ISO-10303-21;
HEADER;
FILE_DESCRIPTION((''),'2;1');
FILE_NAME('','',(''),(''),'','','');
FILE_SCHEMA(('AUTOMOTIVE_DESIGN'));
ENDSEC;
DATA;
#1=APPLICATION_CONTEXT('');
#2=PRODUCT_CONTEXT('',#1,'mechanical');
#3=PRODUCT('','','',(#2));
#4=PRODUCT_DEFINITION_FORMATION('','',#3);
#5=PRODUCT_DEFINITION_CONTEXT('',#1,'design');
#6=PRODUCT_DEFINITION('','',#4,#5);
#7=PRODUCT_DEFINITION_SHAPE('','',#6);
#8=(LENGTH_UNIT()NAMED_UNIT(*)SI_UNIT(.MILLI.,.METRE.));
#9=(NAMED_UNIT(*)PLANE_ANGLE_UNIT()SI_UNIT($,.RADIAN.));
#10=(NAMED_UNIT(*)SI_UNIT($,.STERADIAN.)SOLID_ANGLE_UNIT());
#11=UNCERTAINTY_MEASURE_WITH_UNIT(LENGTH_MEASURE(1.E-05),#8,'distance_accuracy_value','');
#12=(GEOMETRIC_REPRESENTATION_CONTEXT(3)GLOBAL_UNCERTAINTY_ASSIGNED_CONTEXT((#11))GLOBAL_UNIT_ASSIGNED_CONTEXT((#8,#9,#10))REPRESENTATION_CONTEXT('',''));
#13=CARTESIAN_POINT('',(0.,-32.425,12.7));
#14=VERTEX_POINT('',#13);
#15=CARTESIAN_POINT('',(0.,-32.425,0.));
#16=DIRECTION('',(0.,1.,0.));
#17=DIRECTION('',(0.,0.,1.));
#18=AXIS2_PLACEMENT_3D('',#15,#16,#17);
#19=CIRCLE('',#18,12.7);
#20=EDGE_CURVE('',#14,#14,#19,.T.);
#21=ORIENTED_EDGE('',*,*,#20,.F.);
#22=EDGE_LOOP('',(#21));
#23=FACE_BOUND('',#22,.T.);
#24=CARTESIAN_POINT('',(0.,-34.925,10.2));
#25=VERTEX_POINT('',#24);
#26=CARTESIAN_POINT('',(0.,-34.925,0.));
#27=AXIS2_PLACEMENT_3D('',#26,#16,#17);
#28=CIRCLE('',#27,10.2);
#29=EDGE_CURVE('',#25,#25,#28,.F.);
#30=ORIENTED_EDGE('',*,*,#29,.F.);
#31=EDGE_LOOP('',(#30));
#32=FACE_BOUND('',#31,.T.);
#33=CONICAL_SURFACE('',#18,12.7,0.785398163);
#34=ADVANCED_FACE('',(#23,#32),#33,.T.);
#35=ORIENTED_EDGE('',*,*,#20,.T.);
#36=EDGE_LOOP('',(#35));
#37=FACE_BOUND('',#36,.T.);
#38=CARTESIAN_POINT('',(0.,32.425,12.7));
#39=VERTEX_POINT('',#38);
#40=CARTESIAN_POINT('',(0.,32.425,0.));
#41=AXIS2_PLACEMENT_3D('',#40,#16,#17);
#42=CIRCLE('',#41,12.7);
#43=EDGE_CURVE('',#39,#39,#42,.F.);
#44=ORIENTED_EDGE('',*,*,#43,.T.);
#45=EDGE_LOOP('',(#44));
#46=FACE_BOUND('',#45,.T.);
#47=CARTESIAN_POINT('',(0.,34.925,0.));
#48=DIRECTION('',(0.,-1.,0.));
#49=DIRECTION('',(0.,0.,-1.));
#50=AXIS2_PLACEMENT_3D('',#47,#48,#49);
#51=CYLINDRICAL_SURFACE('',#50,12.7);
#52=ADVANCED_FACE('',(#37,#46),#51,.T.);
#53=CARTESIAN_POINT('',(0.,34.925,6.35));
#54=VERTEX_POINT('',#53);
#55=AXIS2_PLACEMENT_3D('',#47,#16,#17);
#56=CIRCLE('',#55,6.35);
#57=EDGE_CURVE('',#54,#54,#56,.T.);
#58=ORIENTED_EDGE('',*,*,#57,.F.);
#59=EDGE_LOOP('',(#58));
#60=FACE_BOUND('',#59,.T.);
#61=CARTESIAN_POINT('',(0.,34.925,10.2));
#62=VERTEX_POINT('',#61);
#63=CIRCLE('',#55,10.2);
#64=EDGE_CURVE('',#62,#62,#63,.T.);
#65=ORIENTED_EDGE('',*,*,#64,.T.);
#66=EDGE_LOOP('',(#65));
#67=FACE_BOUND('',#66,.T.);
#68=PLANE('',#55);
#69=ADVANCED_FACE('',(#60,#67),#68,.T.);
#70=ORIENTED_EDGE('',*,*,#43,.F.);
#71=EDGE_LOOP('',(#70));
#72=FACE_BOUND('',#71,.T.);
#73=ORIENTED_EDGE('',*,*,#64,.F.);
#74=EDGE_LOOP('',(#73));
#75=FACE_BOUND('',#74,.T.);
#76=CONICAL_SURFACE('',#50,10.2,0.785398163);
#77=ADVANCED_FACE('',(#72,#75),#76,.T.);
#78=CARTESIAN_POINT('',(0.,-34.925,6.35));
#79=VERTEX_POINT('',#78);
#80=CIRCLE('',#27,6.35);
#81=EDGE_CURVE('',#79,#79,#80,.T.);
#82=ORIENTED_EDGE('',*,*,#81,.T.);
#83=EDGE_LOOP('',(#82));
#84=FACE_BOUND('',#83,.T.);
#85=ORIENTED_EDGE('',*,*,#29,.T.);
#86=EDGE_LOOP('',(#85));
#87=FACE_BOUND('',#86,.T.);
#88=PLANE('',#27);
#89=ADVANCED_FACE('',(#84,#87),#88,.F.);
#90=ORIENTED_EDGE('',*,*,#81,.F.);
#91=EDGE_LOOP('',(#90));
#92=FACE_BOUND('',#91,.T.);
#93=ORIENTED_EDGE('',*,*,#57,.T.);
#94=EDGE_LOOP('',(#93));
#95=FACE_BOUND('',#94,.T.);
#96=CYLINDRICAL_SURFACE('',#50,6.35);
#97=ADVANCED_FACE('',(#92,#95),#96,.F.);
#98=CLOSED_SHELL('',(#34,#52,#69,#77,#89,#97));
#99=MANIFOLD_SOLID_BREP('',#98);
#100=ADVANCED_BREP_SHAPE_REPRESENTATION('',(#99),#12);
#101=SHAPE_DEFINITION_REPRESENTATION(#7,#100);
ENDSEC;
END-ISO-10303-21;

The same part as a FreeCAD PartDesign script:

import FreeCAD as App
import Part
import Sketcher

V = App.Vector
Q = App.Units.Quantity


def edges_at(feature, points):
    """Names of the edges that pass closest to the given points."""
    edges = feature.Shape.Edges
    near = lambda p: min(range(len(edges)), key=lambda i: edges[i].distToShape(Part.Vertex(*p))[0])
    return sorted({f"Edge{near(p) + 1}" for p in points})

doc = App.newDocument("Part")
params = doc.addObject("Spreadsheet::Sheet", "Params")
for row, (alias, value) in enumerate([
    ("sketch1_diameter", "1 in"),
    ("sketch1_diameter2", "0.5 in"),
    ("pad1_length", "2.75 in"),
    ("chamfer_size", "2.5 mm"),
], start=1):
    params.set(f"A{row}", alias)
    params.set(f"B{row}", "=" + value)
    params.setAlias(f"B{row}", alias)

body = doc.addObject("PartDesign::Body", "Body")

sketch1 = doc.addObject("Sketcher::SketchObject", "Sketch")
body.addObject(sketch1)
sketch1.AttachmentSupport = (doc.XZ_Plane, [""])
sketch1.MapMode = "FlatFace"
sketch1.addGeometry(Part.Circle(V(0, 0, 0), V(0, 0, 1), 13), False)
sketch1.addGeometry(Part.Circle(V(0, 0, 0), V(0, 0, 1), 6), False)
sketch1.addConstraint(Sketcher.Constraint("Coincident", 0, 3, -1, 1))
sketch1.addConstraint(Sketcher.Constraint("Coincident", 1, 3, -1, 1))
sketch1.addConstraint(Sketcher.Constraint("Diameter", 0, Q("1 in")))
sketch1.addConstraint(Sketcher.Constraint("Diameter", 1, Q("0.5 in")))
sketch1.setExpression("Constraints[2]", "Params.sketch1_diameter")
sketch1.setExpression("Constraints[3]", "Params.sketch1_diameter2")
pad1 = doc.addObject("PartDesign::Pad", "Pad")
body.addObject(pad1)
pad1.Profile = sketch1
pad1.setExpression("Length", "Params.pad1_length")
pad1.Midplane = True
doc.recompute()

chamfer = doc.addObject("PartDesign::Chamfer", "Chamfer")
body.addObject(chamfer)
chamfer.Base = (pad1, edges_at(pad1, [(-12.7, -34.925, 0), (-12.7, 34.925, 0)]))
chamfer.setExpression("Size", "Params.chamfer_size")

doc.recompute()
